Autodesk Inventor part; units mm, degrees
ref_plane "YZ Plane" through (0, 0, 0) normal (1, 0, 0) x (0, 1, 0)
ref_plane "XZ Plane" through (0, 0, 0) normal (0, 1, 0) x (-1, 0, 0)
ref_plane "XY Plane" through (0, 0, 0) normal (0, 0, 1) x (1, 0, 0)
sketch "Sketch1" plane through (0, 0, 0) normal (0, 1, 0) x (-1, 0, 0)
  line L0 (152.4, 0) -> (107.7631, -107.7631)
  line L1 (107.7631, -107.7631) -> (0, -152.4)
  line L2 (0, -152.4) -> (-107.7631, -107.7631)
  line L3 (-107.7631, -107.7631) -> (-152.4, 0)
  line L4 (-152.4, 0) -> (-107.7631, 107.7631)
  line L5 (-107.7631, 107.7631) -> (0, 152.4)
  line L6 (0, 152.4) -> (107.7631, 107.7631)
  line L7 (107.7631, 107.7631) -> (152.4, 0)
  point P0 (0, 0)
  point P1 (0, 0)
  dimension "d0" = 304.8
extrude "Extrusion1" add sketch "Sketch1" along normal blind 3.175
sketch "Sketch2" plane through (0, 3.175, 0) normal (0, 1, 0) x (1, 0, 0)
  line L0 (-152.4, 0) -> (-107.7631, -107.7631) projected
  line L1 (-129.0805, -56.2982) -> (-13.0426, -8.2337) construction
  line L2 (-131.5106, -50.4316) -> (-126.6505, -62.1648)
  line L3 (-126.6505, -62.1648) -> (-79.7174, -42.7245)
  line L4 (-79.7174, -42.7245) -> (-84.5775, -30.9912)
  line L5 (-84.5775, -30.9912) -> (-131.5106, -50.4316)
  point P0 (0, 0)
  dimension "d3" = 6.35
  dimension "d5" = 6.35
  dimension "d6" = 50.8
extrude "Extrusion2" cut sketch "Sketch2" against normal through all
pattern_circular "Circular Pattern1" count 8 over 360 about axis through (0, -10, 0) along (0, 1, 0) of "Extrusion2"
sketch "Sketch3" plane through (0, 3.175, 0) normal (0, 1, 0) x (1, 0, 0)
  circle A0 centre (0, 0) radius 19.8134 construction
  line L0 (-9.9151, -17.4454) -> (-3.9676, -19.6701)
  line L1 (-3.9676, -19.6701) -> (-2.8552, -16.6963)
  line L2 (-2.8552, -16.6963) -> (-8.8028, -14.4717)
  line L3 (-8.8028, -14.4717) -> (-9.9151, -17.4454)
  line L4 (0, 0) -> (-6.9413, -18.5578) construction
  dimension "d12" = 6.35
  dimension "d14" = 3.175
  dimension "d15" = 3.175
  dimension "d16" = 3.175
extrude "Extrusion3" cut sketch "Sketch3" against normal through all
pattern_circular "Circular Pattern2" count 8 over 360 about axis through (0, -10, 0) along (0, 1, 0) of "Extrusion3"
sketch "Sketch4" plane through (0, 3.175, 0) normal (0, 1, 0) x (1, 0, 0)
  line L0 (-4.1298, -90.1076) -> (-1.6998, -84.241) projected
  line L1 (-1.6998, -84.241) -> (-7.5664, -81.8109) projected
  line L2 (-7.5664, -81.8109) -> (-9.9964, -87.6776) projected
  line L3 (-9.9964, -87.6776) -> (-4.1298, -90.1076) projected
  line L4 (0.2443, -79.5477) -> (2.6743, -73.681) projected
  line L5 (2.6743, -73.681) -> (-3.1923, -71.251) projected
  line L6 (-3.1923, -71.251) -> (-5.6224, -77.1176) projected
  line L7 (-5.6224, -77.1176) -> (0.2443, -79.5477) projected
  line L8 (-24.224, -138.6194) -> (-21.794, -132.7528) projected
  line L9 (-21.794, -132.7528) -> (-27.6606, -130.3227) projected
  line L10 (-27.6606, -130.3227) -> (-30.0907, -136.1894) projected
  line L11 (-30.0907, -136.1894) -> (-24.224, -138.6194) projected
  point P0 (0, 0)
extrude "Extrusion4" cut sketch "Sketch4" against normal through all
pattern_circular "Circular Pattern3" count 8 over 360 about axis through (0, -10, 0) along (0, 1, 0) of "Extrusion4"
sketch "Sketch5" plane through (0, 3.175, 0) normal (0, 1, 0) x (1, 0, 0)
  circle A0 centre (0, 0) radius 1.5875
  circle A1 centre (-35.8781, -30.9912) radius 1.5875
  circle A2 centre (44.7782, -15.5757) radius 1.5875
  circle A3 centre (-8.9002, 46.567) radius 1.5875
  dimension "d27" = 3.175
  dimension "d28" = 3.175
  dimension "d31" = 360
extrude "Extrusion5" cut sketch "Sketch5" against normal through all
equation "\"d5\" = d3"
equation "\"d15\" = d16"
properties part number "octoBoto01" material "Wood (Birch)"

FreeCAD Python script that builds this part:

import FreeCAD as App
import Part
import Sketcher
Q = App.Units.Quantity

doc = App.newDocument("Part")
body = doc.addObject("PartDesign::Body", "Body")

# Sketch on XZ plane
sketch1 = body.newObject("Sketcher::SketchObject", "Sketch")
sketch1.AttachmentSupport = (doc.getObject("XZ_Plane"), [""])
sketch1.MapMode = "FlatFace"
sketch1.addGeometry(Part.LineSegment(App.Vector(-108, -108, 0), App.Vector(-152, 0, 0)), False)
sketch1.addGeometry(Part.LineSegment(App.Vector(-152, 0, 0), App.Vector(-108, 108, 0)), False)
sketch1.addGeometry(Part.LineSegment(App.Vector(-108, 108, 0), App.Vector(0, 152, 0)), False)
sketch1.addGeometry(Part.LineSegment(App.Vector(0, 152, 0), App.Vector(108, 108, 0)), False)
sketch1.addGeometry(Part.LineSegment(App.Vector(108, 108, 0), App.Vector(152, 0, 0)), False)
sketch1.addGeometry(Part.LineSegment(App.Vector(152, 0, 0), App.Vector(108, -108, 0)), False)
sketch1.addGeometry(Part.LineSegment(App.Vector(108, -108, 0), App.Vector(0, -152, 0)), False)
sketch1.addGeometry(Part.LineSegment(App.Vector(0, -152, 0), App.Vector(-108, -108, 0)), False)
sketch1.addConstraint(Sketcher.Constraint("Coincident", 0, 2, 1, 1))
sketch1.addConstraint(Sketcher.Constraint("Coincident", 1, 2, 2, 1))
sketch1.addConstraint(Sketcher.Constraint("Coincident", 2, 2, 3, 1))
sketch1.addConstraint(Sketcher.Constraint("Coincident", 3, 2, 4, 1))
sketch1.addConstraint(Sketcher.Constraint("Coincident", 4, 2, 5, 1))
sketch1.addConstraint(Sketcher.Constraint("Coincident", 5, 2, 6, 1))
sketch1.addConstraint(Sketcher.Constraint("Coincident", 6, 2, 7, 1))
sketch1.addConstraint(Sketcher.Constraint("Coincident", 7, 2, 0, 1))
sketch1.addConstraint(Sketcher.Constraint("Symmetric", 0, 2, 4, 2, -1, 1))
sketch1.addConstraint(Sketcher.Constraint("Symmetric", 1, 2, 5, 2, -1, 1))
sketch1.addConstraint(Sketcher.Constraint("Symmetric", 2, 2, 6, 2, -1, 1))
sketch1.addConstraint(Sketcher.Constraint("Symmetric", 3, 2, 7, 2, -1, 1))
sketch1.addConstraint(Sketcher.Constraint("Symmetric", 1, 2, 3, 2, -2))
sketch1.addConstraint(Sketcher.Constraint("PointOnObject", 0, 2, -1))
sketch1.addConstraint(Sketcher.Constraint("PointOnObject", 2, 2, -2))
sketch1.addConstraint(Sketcher.Constraint("Perpendicular", 0, 2))
sketch1.addConstraint(Sketcher.Constraint("Equal", 1, 2))
sketch1.addConstraint(Sketcher.Constraint("DistanceX", 0, 2, 4, 2, Q("12 in")))
sketch1.addConstraint(Sketcher.Constraint("Angle", 0, Q("112.5 deg")))
pad1 = body.newObject("PartDesign::Pad", "Pad")
pad1.Profile = sketch1
pad1.Length = Q("0.125 in")
pad1.Reversed = True

# Sketch on XZ plane
sketch2 = body.newObject("Sketcher::SketchObject", "Sketch001")
sketch2.AttachmentSupport = (doc.getObject("XZ_Plane"), [""])
sketch2.MapMode = "FlatFace"
sketch2.AttachmentOffset = App.Placement(App.Vector(0, 0, -0.125 * 25.4), App.Rotation())
sketch2.addGeometry(Part.LineSegment(App.Vector(-85, 31, 0), App.Vector(-132, 50, 0)), False)
sketch2.addGeometry(Part.LineSegment(App.Vector(-132, 50, 0), App.Vector(-127, 62, 0)), False)
sketch2.addGeometry(Part.LineSegment(App.Vector(-127, 62, 0), App.Vector(-80, 43, 0)), False)
sketch2.addGeometry(Part.LineSegment(App.Vector(-80, 43, 0), App.Vector(-85, 31, 0)), False)
sketch2.addConstraint(Sketcher.Constraint("Coincident", 0, 2, 1, 1))
sketch2.addConstraint(Sketcher.Constraint("Coincident", 1, 2, 2, 1))
sketch2.addConstraint(Sketcher.Constraint("Coincident", 2, 2, 3, 1))
sketch2.addConstraint(Sketcher.Constraint("Coincident", 3, 2, 0, 1))
sketch2.addConstraint(Sketcher.Constraint("Perpendicular", 0, 1))
sketch2.addConstraint(Sketcher.Constraint("Perpendicular", 1, 2))
sketch2.addConstraint(Sketcher.Constraint("Perpendicular", 2, 3))
sketch2.addConstraint(Sketcher.Constraint("Distance", 0, Q("2 in")))
sketch2.addConstraint(Sketcher.Constraint("Distance", 1, Q("0.5 in")))
sketch2.addConstraint(Sketcher.Constraint("Angle", 0, Q("157.5 deg")))
sketch2.addConstraint(Sketcher.Constraint("DistanceY", -1, 1, 0, 2, Q("1.9855 in")))
sketch2.addConstraint(Sketcher.Constraint("DistanceX", 0, 2, -1, 1, Q("131.5106 mm")))
pocket1 = body.newObject("PartDesign::Pocket", "Pocket")
pocket1.Profile = sketch2
pocket1.Type = "ThroughAll"
pocket1.Reversed = True
doc.recompute()

polarpattern = body.newObject("PartDesign::PolarPattern", "PolarPattern")
polarpattern.Originals = [pocket1]
polarpattern.Axis = (doc.getObject("Y_Axis"), [""])
polarpattern.Angle = 360
polarpattern.Occurrences = 8
body.Tip = polarpattern

# Sketch on XZ plane
sketch3 = body.newObject("Sketcher::SketchObject", "Sketch002")
sketch3.AttachmentSupport = (doc.getObject("XZ_Plane"), [""])
sketch3.MapMode = "FlatFace"
sketch3.AttachmentOffset = App.Placement(App.Vector(0, 0, -0.125 * 25.4), App.Rotation())
sketch3.addGeometry(Part.LineSegment(App.Vector(-8.8, 14.5, 0), App.Vector(-9.9, 17.4, 0)), False)
sketch3.addGeometry(Part.LineSegment(App.Vector(-9.9, 17.4, 0), App.Vector(-4, 19.7, 0)), False)
sketch3.addGeometry(Part.LineSegment(App.Vector(-4, 19.7, 0), App.Vector(-2.9, 16.7, 0)), False)
sketch3.addGeometry(Part.LineSegment(App.Vector(-2.9, 16.7, 0), App.Vector(-8.8, 14.5, 0)), False)
sketch3.addConstraint(Sketcher.Constraint("Coincident", 0, 2, 1, 1))
sketch3.addConstraint(Sketcher.Constraint("Coincident", 1, 2, 2, 1))
sketch3.addConstraint(Sketcher.Constraint("Coincident", 2, 2, 3, 1))
sketch3.addConstraint(Sketcher.Constraint("Coincident", 3, 2, 0, 1))
sketch3.addConstraint(Sketcher.Constraint("Perpendicular", 0, 1))
sketch3.addConstraint(Sketcher.Constraint("Perpendicular", 1, 2))
sketch3.addConstraint(Sketcher.Constraint("Perpendicular", 2, 3))
sketch3.addConstraint(Sketcher.Constraint("Distance", 1, Q("0.25 in")))
sketch3.addConstraint(Sketcher.Constraint("Distance", 0, Q("0.125 in")))
sketch3.addConstraint(Sketcher.Constraint("Angle", 2, Q("-69.4908 deg")))
sketch3.addConstraint(Sketcher.Constraint("DistanceX", 1, 2, -1, 1, Q("0.1562 in")))
sketch3.addConstraint(Sketcher.Constraint("DistanceY", -1, 1, 0, 2, Q("17.4454 mm")))
pocket2 = body.newObject("PartDesign::Pocket", "Pocket001")
pocket2.Profile = sketch3
pocket2.Type = "ThroughAll"
pocket2.Reversed = True
doc.recompute()

polarpattern2 = body.newObject("PartDesign::PolarPattern", "PolarPattern001")
polarpattern2.Originals = [pocket2]
polarpattern2.Axis = (doc.getObject("Y_Axis"), [""])
polarpattern2.Angle = 360
polarpattern2.Occurrences = 8
body.Tip = polarpattern2

# Sketch on XZ plane
sketch4 = body.newObject("Sketcher::SketchObject", "Sketch003")
sketch4.AttachmentSupport = (doc.getObject("XZ_Plane"), [""])
sketch4.MapMode = "FlatFace"
sketch4.AttachmentOffset = App.Placement(App.Vector(0, 0, -0.125 * 25.4), App.Rotation())
sketch4.addGeometry(Part.LineSegment(App.Vector(-10, 88, 0), App.Vector(-4, 90, 0)), False)
sketch4.addGeometry(Part.LineSegment(App.Vector(-4, 90, 0), App.Vector(-2, 84, 0)), False)
sketch4.addGeometry(Part.LineSegment(App.Vector(-2, 84, 0), App.Vector(-8, 82, 0)), False)
sketch4.addGeometry(Part.LineSegment(App.Vector(-8, 82, 0), App.Vector(-10, 88, 0)), False)
sketch4.addGeometry(Part.LineSegment(App.Vector(-6, 77, 0), App.Vector(0, 80, 0)), False)
sketch4.addGeometry(Part.LineSegment(App.Vector(0, 80, 0), App.Vector(3, 74, 0)), False)
sketch4.addGeometry(Part.LineSegment(App.Vector(3, 74, 0), App.Vector(-3, 71, 0)), False)
sketch4.addGeometry(Part.LineSegment(App.Vector(-3, 71, 0), App.Vector(-6, 77, 0)), False)
sketch4.addGeometry(Part.LineSegment(App.Vector(-30, 136, 0), App.Vector(-24, 139, 0)), False)
sketch4.addGeometry(Part.LineSegment(App.Vector(-24, 139, 0), App.Vector(-22, 133, 0)), False)
sketch4.addGeometry(Part.LineSegment(App.Vector(-22, 133, 0), App.Vector(-28, 130, 0)), False)
sketch4.addGeometry(Part.LineSegment(App.Vector(-28, 130, 0), App.Vector(-30, 136, 0)), False)
sketch4.addConstraint(Sketcher.Constraint("Coincident", 0, 2, 1, 1))
sketch4.addConstraint(Sketcher.Constraint("Coincident", 1, 2, 2, 1))
sketch4.addConstraint(Sketcher.Constraint("Coincident", 2, 2, 3, 1))
sketch4.addConstraint(Sketcher.Constraint("Coincident", 3, 2, 0, 1))
sketch4.addConstraint(Sketcher.Constraint("Coincident", 4, 2, 5, 1))
sketch4.addConstraint(Sketcher.Constraint("Coincident", 5, 2, 6, 1))
sketch4.addConstraint(Sketcher.Constraint("Coincident", 6, 2, 7, 1))
sketch4.addConstraint(Sketcher.Constraint("Coincident", 7, 2, 4, 1))
sketch4.addConstraint(Sketcher.Constraint("Coincident", 8, 2, 9, 1))
sketch4.addConstraint(Sketcher.Constraint("Coincident", 9, 2, 10, 1))
sketch4.addConstraint(Sketcher.Constraint("Coincident", 10, 2, 11, 1))
sketch4.addConstraint(Sketcher.Constraint("Coincident", 11, 2, 8, 1))
sketch4.addConstraint(Sketcher.Constraint("Perpendicular", 0, 1))
sketch4.addConstraint(Sketcher.Constraint("Perpendicular", 1, 2))
sketch4.addConstraint(Sketcher.Constraint("Perpendicular", 2, 3))
sketch4.addConstraint(Sketcher.Constraint("Perpendicular", 3, 4))
sketch4.addConstraint(Sketcher.Constraint("Perpendicular", 4, 5))
sketch4.addConstraint(Sketcher.Constraint("Perpendicular", 5, 6))
sketch4.addConstraint(Sketcher.Constraint("Perpendicular", 6, 7))
sketch4.addConstraint(Sketcher.Constraint("Perpendicular", 7, 8))
sketch4.addConstraint(Sketcher.Constraint("Perpendicular", 8, 9))
sketch4.addConstraint(Sketcher.Constraint("Perpendicular", 9, 10))
sketch4.addConstraint(Sketcher.Constraint("Perpendicular", 10, 11))
sketch4.addConstraint(Sketcher.Constraint("Equal", 0, 1))
sketch4.addConstraint(Sketcher.Constraint("Equal", 3, 4))
sketch4.addConstraint(Sketcher.Constraint("Equal", 4, 5))
sketch4.addConstraint(Sketcher.Constraint("Equal", 7, 8))
sketch4.addConstraint(Sketcher.Constraint("Equal", 8, 9))
sketch4.addConstraint(Sketcher.Constraint("Angle", 0, Q("22.4998 deg")))
sketch4.addConstraint(Sketcher.Constraint("Distance", 0, Q("0.25 in")))
sketch4.addConstraint(Sketcher.Constraint("DistanceX", 10, 2, -1, 1, Q("1.089 in")))
sketch4.addConstraint(Sketcher.Constraint("DistanceX", 0, 2, -1, 1, Q("0.1626 in")))
sketch4.addConstraint(Sketcher.Constraint("DistanceY", -1, 1, 2, 2, Q("3.2209 in")))
sketch4.addConstraint(Sketcher.Constraint("DistanceY", -1, 1, 4, 2, Q("3.1318 in")))
sketch4.addConstraint(Sketcher.Constraint("DistanceY", -1, 1, 9, 2, Q("5.2265 in")))
sketch4.addConstraint(Sketcher.Constraint("DistanceX", 2, 2, 4, 2, Q("0.3075 in")))
pocket3 = body.newObject("PartDesign::Pocket", "Pocket002")
pocket3.Profile = sketch4
pocket3.Type = "ThroughAll"
pocket3.Reversed = True
doc.recompute()

polarpattern3 = body.newObject("PartDesign::PolarPattern", "PolarPattern002")
polarpattern3.Originals = [pocket3]
polarpattern3.Axis = (doc.getObject("Y_Axis"), [""])
polarpattern3.Angle = 360
polarpattern3.Occurrences = 8
body.Tip = polarpattern3

# Sketch on XZ plane
sketch5 = body.newObject("Sketcher::SketchObject", "Sketch004")
sketch5.AttachmentSupport = (doc.getObject("XZ_Plane"), [""])
sketch5.MapMode = "FlatFace"
sketch5.AttachmentOffset = App.Placement(App.Vector(0, 0, -0.125 * 25.4), App.Rotation())
sketch5.addGeometry(Part.Circle(App.Vector(0, 0, 0), App.Vector(0, 0, 1), 1.6), False)
sketch5.addGeometry(Part.Circle(App.Vector(-35.9, 31, 0), App.Vector(0, 0, 1), 1.6), False)
sketch5.addGeometry(Part.Circle(App.Vector(44.8, 15.6, 0), App.Vector(0, 0, 1), 1.6), False)
sketch5.addGeometry(Part.Circle(App.Vector(-8.9, -46.6, 0), App.Vector(0, 0, 1), 1.6), False)
sketch5.addConstraint(Sketcher.Constraint("Coincident", 0, 3, -1, 1))
sketch5.addConstraint(Sketcher.Constraint("Equal", 0, 1))
sketch5.addConstraint(Sketcher.Constraint("Equal", 1, 2))
sketch5.addConstraint(Sketcher.Constraint("Equal", 2, 3))
sketch5.addConstraint(Sketcher.Constraint("Diameter", 0, Q("0.125 in")))
sketch5.addConstraint(Sketcher.Constraint("DistanceX", 3, 3, -1, 1, Q("0.3504 in")))
sketch5.addConstraint(Sketcher.Constraint("DistanceY", 2, 3, 1, 3, Q("0.6069 in")))
sketch5.addConstraint(Sketcher.Constraint("DistanceX", 1, 3, -1, 1, Q("35.878 mm")))
sketch5.addConstraint(Sketcher.Constraint("DistanceY", -1, 1, 1, 3, Q("30.9912 mm")))
sketch5.addConstraint(Sketcher.Constraint("DistanceX", -1, 1, 2, 3, Q("44.7782 mm")))
sketch5.addConstraint(Sketcher.Constraint("DistanceY", 3, 3, -1, 1, Q("46.567 mm")))
pocket4 = body.newObject("PartDesign::Pocket", "Pocket003")
pocket4.Profile = sketch5
pocket4.Type = "ThroughAll"
pocket4.Reversed = True

doc.recompute()
